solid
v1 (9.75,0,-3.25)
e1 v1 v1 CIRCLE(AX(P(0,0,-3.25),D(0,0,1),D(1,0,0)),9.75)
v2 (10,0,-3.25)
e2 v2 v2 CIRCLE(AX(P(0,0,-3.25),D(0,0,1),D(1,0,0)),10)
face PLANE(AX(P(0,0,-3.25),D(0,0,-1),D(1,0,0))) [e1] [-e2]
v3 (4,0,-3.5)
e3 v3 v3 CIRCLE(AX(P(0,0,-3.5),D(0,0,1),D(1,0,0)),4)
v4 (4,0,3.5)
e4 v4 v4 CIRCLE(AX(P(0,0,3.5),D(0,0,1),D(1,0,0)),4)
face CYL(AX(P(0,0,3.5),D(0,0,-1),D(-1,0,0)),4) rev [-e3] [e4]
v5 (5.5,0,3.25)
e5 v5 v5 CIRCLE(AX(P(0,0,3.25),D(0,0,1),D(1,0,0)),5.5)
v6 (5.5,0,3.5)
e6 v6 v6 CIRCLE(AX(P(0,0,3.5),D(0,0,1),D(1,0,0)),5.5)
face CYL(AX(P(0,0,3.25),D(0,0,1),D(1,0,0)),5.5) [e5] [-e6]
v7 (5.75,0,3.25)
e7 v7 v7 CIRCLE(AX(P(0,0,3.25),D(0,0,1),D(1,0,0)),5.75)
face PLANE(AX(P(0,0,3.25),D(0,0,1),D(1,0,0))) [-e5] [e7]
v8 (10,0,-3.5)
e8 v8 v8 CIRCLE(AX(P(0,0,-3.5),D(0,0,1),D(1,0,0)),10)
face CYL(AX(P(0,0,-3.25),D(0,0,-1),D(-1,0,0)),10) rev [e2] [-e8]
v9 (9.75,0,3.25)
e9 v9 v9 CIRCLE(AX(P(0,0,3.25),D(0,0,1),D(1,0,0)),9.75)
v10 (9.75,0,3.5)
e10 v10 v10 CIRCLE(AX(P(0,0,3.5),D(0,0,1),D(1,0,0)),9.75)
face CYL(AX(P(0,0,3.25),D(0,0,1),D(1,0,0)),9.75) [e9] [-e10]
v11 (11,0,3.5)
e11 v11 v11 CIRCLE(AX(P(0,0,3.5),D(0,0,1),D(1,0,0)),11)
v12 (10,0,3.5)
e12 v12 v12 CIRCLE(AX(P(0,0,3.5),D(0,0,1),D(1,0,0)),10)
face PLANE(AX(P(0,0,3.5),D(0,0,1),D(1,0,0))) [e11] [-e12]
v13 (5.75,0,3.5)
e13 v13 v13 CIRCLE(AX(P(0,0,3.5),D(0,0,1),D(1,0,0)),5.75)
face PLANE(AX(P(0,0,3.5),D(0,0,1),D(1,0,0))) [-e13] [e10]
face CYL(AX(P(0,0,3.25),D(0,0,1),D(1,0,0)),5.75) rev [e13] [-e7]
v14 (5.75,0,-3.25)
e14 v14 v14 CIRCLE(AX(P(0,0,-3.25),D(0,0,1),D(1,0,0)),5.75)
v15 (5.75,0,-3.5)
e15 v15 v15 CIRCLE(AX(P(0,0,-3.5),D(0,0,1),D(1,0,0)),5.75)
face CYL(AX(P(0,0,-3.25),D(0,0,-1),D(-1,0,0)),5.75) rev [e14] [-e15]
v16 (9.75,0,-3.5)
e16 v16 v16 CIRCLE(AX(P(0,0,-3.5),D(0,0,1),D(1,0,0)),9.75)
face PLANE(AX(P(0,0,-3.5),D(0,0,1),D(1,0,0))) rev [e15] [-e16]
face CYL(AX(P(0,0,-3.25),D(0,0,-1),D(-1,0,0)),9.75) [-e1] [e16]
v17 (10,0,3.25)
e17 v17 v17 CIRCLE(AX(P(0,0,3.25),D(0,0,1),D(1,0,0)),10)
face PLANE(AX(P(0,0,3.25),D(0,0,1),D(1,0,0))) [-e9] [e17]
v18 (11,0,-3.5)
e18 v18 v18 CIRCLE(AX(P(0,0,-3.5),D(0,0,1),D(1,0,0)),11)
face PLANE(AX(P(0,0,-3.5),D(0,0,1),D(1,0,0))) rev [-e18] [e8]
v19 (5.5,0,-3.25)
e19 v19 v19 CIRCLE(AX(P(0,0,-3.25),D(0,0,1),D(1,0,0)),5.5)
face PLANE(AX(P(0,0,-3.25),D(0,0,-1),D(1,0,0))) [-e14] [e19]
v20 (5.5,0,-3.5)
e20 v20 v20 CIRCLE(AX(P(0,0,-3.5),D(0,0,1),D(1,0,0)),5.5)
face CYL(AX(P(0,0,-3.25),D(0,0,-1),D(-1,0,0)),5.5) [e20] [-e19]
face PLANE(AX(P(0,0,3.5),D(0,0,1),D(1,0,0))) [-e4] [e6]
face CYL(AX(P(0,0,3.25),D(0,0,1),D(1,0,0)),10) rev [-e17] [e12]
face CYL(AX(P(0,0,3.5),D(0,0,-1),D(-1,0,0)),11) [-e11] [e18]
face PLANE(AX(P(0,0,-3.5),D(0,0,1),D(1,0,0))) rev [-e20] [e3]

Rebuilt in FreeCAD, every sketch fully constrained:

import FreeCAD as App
import Part
import Sketcher
from FreeCAD import Vector

doc = App.newDocument("Part")
body = doc.addObject("PartDesign::Body", "Body")

sketch1 = doc.addObject("Sketcher::SketchObject", "Sketch")
body.addObject(sketch1)
sketch1.AttachmentSupport = (doc.XY_Plane, [""])
sketch1.MapMode = "FlatFace"
sketch1.addGeometry([
    Part.Circle(Vector(0, 0, 0), Vector(0, 0, 1), 11),
    Part.Circle(Vector(0, 0, 0), Vector(0, 0, 1), 4),
], False)
sketch1.addConstraint([
    Sketcher.Constraint("Coincident", 0, 3, -1, 1),
    Sketcher.Constraint("Coincident", 1, 3, -1, 1),
    Sketcher.Constraint("Diameter", 0, 22.0),
    Sketcher.Constraint("Diameter", 1, 8.0),
])
pad1 = doc.addObject("PartDesign::Pad", "Pad")
body.addObject(pad1)
pad1.Profile = sketch1
pad1.Length = 7
pad1.Midplane = True

sketch2 = doc.addObject("Sketcher::SketchObject", "Sketch001")
body.addObject(sketch2)
sketch2.AttachmentSupport = (doc.XY_Plane, [""])
sketch2.MapMode = "FlatFace"
sketch2.AttachmentOffset = App.Placement(Vector(0, 0, 3.5), App.Rotation())
sketch2.addGeometry([
    Part.Circle(Vector(0, 0, 0), Vector(0, 0, 1), 10),
    Part.Circle(Vector(0, 0, 0), Vector(0, 0, 1), 10),
    Part.Circle(Vector(0, 0, 0), Vector(0, 0, 1), 6),
    Part.Circle(Vector(0, 0, 0), Vector(0, 0, 1), 6),
], False)
sketch2.addConstraint([
    Sketcher.Constraint("Coincident", 0, 3, -1, 1),
    Sketcher.Constraint("Coincident", 1, 3, -1, 1),
    Sketcher.Constraint("Coincident", 2, 3, -1, 1),
    Sketcher.Constraint("Coincident", 3, 3, -1, 1),
    Sketcher.Constraint("Diameter", 0, 20.0),
    Sketcher.Constraint("Diameter", 3, 11.0),
    Sketcher.Constraint("Diameter", 1, 19.5),
    Sketcher.Constraint("Diameter", 2, 11.5),
])
pocket1 = doc.addObject("PartDesign::Pocket", "Pocket")
body.addObject(pocket1)
pocket1.Profile = sketch2
pocket1.Length = 0.25
doc.recompute()

mirrored = doc.addObject("PartDesign::Mirrored", "Mirrored")
body.addObject(mirrored)
mirrored.Originals = [pocket1]
mirrored.MirrorPlane = (doc.XY_Plane, [""])
body.Tip = mirrored

doc.recompute()
